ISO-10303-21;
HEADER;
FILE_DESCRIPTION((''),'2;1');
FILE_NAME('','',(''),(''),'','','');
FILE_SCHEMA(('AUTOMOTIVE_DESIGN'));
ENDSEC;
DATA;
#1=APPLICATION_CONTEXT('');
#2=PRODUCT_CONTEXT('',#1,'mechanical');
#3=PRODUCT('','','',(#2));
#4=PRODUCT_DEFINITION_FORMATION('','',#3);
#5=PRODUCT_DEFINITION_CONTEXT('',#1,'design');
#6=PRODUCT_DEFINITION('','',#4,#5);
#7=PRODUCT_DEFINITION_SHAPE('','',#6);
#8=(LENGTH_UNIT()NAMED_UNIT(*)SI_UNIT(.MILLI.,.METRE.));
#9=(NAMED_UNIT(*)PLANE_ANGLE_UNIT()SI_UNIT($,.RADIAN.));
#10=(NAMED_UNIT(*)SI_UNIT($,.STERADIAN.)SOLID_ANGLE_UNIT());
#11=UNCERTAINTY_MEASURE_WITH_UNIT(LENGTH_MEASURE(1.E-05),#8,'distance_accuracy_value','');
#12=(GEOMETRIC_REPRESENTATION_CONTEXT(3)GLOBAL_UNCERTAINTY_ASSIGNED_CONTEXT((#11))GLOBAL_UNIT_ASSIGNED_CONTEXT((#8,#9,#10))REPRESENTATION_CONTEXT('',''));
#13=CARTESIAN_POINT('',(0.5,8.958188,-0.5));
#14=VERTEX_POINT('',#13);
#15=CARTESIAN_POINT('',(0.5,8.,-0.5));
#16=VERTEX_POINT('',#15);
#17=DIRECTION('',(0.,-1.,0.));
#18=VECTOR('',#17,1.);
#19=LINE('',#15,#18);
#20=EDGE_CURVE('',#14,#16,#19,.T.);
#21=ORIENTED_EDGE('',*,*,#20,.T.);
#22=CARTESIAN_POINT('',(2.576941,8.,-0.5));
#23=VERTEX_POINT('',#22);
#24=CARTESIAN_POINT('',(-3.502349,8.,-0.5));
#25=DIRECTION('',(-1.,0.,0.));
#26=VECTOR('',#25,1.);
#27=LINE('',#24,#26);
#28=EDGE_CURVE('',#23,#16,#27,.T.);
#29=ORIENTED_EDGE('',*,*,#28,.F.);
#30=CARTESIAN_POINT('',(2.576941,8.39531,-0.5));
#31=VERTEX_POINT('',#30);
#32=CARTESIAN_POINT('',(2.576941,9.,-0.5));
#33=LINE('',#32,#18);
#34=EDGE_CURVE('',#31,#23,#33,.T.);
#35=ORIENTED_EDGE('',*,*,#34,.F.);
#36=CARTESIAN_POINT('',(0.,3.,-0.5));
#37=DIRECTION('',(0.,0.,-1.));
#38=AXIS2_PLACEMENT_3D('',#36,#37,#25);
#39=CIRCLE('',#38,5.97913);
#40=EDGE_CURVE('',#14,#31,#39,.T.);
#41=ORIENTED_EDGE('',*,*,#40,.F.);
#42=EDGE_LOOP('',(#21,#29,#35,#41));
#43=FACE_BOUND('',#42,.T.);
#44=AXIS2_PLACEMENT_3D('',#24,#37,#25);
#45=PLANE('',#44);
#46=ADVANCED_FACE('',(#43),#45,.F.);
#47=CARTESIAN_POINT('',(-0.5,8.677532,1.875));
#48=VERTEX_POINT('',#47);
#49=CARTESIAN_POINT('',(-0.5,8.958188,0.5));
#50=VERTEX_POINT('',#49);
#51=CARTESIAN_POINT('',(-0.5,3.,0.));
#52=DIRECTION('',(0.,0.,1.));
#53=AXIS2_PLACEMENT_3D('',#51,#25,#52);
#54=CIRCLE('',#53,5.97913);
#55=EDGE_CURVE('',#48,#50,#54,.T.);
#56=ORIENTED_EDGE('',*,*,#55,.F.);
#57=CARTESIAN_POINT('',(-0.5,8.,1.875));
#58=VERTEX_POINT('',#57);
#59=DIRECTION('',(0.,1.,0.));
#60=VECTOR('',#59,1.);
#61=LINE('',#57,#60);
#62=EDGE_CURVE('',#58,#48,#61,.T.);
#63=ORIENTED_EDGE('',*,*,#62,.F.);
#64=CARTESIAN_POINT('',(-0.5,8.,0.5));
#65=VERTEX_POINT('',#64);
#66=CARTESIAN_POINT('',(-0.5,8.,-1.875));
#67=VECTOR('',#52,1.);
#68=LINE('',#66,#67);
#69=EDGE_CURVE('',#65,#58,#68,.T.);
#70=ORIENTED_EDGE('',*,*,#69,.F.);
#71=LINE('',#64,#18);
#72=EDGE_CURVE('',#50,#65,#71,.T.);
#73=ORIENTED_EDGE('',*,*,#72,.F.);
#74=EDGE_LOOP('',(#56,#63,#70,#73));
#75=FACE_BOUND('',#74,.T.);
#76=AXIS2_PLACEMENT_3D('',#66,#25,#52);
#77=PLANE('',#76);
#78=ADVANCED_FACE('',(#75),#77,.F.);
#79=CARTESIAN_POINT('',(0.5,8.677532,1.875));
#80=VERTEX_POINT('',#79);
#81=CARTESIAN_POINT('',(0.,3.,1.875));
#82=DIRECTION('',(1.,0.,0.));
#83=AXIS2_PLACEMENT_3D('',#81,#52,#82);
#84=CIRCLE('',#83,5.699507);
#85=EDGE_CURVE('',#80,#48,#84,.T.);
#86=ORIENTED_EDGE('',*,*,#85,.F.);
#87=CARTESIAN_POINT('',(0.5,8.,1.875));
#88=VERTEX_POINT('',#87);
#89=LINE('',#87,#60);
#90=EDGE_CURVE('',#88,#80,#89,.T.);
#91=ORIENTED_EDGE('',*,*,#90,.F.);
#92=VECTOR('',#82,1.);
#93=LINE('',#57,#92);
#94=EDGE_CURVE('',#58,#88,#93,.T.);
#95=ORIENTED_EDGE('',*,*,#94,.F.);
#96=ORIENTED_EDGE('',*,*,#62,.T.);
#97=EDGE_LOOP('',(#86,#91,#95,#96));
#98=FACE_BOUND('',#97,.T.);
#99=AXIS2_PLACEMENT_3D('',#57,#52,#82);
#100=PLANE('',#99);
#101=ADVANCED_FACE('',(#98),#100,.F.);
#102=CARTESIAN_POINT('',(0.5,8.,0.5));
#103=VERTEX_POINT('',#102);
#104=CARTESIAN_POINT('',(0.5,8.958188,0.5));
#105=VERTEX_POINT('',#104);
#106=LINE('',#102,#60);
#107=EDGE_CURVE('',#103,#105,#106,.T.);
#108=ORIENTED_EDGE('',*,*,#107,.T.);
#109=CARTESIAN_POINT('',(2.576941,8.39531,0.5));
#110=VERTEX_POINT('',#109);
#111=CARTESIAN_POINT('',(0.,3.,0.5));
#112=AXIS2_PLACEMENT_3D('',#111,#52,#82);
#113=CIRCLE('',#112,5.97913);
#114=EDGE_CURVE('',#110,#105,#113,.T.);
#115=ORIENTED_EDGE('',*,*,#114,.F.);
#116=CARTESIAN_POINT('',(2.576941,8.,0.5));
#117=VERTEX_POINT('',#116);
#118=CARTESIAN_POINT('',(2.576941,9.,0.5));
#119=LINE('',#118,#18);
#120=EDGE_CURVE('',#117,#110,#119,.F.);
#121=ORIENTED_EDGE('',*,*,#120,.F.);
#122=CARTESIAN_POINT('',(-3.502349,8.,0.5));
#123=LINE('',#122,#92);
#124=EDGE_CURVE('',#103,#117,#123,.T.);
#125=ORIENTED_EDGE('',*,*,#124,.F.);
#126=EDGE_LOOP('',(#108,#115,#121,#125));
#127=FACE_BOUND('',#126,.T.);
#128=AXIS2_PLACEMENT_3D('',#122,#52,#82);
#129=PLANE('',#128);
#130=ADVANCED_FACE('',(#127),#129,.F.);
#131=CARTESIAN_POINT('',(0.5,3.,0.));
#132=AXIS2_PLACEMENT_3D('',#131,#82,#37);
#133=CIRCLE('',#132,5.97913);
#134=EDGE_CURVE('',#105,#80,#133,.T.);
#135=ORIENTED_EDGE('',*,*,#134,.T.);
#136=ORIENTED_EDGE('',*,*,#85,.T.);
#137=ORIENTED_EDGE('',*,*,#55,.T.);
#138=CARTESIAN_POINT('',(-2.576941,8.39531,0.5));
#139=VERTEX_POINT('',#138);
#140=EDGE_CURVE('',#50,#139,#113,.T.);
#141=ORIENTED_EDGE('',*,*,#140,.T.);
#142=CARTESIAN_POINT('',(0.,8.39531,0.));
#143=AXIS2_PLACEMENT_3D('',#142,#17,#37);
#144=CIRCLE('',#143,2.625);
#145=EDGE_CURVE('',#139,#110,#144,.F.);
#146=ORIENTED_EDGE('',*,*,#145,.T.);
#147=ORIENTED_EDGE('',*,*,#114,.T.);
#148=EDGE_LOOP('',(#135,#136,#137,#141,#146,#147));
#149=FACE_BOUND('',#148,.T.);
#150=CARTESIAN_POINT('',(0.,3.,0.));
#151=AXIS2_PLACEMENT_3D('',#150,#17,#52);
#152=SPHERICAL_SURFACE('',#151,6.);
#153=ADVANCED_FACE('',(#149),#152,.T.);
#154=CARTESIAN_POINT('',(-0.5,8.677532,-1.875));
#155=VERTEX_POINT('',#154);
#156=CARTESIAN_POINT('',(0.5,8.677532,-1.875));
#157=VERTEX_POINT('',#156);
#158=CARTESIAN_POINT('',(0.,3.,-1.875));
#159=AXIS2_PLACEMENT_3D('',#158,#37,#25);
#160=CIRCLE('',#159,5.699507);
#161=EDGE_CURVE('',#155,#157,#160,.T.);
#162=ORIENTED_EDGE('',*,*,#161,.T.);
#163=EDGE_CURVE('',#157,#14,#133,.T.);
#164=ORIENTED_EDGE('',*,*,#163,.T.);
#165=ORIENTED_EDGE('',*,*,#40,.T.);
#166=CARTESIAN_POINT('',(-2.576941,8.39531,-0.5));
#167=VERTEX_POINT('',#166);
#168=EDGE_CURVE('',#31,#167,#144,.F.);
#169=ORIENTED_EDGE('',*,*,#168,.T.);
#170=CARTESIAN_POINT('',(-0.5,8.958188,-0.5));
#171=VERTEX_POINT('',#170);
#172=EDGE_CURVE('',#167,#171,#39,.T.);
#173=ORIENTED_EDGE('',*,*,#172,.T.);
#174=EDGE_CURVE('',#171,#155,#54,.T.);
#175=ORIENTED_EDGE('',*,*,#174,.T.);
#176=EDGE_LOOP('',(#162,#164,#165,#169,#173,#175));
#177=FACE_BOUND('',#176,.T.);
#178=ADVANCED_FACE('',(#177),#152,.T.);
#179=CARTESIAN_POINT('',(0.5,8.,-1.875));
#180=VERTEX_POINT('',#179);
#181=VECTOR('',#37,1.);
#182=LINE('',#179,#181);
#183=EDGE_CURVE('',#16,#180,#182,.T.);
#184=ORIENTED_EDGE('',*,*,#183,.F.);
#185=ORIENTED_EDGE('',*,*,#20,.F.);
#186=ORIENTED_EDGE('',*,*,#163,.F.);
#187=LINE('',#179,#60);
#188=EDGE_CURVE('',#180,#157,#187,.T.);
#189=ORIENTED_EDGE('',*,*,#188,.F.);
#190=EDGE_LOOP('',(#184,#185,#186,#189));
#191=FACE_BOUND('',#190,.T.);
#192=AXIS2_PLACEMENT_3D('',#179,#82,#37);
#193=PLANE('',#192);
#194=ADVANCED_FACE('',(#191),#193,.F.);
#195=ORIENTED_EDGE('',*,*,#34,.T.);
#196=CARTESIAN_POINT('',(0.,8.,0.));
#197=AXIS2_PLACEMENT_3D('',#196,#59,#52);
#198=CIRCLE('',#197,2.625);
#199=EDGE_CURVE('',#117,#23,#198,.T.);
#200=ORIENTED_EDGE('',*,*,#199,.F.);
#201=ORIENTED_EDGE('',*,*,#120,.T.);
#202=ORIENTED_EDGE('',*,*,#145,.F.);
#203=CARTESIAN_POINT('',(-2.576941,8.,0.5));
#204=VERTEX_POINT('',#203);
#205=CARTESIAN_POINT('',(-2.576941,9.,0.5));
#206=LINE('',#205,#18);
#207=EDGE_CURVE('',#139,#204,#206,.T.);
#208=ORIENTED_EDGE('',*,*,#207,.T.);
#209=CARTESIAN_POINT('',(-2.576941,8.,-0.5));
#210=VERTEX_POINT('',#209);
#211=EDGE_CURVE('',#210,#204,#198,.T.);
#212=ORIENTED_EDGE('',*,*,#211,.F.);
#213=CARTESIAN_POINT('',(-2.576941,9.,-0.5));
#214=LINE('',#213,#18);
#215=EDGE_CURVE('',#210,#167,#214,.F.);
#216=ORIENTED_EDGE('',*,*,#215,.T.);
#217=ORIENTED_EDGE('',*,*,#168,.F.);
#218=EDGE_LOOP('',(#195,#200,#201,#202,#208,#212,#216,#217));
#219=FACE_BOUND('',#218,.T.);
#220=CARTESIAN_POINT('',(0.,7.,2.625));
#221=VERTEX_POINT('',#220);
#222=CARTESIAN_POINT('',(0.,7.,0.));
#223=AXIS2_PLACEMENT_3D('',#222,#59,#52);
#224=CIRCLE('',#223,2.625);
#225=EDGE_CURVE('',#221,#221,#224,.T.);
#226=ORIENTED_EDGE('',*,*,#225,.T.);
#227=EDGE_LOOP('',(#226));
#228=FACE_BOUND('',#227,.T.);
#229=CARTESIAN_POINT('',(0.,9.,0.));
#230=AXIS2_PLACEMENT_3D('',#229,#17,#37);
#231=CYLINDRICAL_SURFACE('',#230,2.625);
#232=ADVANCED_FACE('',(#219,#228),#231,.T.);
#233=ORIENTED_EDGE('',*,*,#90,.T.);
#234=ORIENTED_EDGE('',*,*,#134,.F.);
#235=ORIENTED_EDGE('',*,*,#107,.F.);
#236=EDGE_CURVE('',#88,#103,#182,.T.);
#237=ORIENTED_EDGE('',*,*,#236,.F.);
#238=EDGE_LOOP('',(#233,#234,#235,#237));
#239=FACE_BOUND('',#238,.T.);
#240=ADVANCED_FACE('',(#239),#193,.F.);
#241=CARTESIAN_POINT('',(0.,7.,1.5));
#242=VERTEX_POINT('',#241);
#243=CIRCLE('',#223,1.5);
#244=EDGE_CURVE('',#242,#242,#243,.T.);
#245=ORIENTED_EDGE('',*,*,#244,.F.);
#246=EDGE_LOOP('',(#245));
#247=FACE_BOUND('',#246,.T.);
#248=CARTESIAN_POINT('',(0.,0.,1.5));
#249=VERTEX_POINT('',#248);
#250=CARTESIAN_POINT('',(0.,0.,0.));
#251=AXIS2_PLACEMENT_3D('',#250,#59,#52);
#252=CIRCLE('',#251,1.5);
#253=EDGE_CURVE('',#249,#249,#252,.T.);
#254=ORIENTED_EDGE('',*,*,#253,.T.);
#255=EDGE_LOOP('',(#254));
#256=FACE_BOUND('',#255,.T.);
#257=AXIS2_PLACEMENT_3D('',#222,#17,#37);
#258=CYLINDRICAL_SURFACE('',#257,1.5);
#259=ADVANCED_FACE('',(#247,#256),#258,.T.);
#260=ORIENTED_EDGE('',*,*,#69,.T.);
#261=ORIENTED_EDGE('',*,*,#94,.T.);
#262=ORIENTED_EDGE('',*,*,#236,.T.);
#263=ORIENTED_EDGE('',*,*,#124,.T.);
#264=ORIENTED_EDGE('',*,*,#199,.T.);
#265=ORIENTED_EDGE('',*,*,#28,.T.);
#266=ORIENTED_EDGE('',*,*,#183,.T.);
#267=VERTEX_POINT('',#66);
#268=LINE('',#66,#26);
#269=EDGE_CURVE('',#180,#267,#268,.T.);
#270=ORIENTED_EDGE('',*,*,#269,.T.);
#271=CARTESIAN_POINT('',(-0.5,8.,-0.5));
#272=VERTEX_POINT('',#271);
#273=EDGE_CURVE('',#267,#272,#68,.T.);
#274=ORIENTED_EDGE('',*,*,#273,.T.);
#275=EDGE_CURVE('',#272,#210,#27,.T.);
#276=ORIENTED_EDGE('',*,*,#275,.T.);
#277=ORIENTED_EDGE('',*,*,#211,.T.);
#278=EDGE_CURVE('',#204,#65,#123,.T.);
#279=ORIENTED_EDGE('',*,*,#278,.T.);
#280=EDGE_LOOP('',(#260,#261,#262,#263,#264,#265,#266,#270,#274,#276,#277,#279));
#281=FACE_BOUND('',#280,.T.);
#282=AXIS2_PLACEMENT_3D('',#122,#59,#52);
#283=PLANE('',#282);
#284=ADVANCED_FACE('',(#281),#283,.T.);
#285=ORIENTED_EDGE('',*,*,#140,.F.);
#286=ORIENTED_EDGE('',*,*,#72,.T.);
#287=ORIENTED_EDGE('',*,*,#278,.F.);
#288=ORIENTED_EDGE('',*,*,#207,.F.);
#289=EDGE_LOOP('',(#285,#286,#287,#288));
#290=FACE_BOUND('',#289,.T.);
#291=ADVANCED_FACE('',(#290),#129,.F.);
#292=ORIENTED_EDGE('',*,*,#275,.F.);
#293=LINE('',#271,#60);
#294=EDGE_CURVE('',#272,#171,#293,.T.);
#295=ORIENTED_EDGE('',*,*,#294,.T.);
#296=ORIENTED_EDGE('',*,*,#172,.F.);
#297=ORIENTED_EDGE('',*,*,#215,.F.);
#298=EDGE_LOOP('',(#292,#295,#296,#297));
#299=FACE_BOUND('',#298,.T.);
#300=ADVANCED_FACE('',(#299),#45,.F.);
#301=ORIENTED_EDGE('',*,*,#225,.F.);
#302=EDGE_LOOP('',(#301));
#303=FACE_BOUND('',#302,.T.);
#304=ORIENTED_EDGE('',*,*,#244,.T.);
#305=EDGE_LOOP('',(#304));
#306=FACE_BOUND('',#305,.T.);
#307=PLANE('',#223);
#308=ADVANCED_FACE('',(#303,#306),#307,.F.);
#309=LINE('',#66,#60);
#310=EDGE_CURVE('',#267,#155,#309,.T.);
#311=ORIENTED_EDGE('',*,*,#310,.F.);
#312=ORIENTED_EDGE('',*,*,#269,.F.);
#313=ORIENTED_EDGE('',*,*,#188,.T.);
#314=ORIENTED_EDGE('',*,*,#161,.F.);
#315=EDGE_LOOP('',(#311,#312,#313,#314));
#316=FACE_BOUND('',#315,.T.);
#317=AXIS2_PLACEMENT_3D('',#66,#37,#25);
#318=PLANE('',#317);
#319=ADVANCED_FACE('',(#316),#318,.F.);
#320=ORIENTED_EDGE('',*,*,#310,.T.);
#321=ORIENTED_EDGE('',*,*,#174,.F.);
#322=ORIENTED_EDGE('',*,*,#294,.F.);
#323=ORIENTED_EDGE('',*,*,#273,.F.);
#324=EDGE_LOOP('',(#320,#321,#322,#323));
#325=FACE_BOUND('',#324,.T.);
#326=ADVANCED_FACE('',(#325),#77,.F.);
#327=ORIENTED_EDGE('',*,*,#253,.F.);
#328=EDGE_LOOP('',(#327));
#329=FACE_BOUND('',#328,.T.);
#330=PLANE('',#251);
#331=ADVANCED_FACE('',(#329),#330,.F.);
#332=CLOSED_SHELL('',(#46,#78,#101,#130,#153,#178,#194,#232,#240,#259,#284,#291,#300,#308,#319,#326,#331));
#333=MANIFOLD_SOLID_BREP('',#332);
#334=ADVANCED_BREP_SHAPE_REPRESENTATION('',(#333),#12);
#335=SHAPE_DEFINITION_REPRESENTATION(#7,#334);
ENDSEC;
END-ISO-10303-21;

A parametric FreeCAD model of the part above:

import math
import FreeCAD as App
import Part
import Sketcher


def add_polygon(sketch, points):
    """Adds a closed chain of lines whose ends are joined by coincident constraints."""
    first, n = sketch.GeometryCount, len(points)
    for a, b in zip(points, points[1:] + points[:1]):
        sketch.addGeometry(Part.LineSegment(App.Vector(*a, 0), App.Vector(*b, 0)), False)
    for i in range(n):
        sketch.addConstraint(Sketcher.Constraint("Coincident", first + i, 2, first + (i + 1) % n, 1))

doc = App.newDocument("Part")
params = doc.addObject("Spreadsheet::Sheet", "Params")
for row, (alias, value) in enumerate([
    ("sketch1_diameter", "3 mm"),
    ("pad1_length", "7 mm"),
    ("sketch2_diameter", "5.25 mm"),
    ("pad2_length", "2 mm"),
    ("sketch3_height", "1 mm"),
    ("pocket1_length", "1 mm"),
    ("sketch4_width", "1 mm"),
    ("sketch4_height", "3.75 mm"),
    ("pocket2_length", "1 mm"),
    ("sketch5_radius", "6 mm"),
    ("groove_angle", "360 deg"),
], start=1):
    params.set(f"A{row}", alias)
    params.set(f"B{row}", "=" + value)
    params.setAlias(f"B{row}", alias)

body = doc.addObject("PartDesign::Body", "Body")

# Sketch on XZ plane
sketch1 = body.newObject("Sketcher::SketchObject", "Sketch")
sketch1.AttachmentSupport = (doc.getObject("XZ_Plane"), [""])
sketch1.MapMode = "FlatFace"
sketch1.addGeometry(Part.Circle(App.Vector(0, 0, 0), App.Vector(0, 0, 1), 1.5), False)
sketch1.addConstraint(Sketcher.Constraint("Coincident", 0, 3, -1, 1))
sketch1.addConstraint(Sketcher.Constraint("Diameter", 0, 3.0))
sketch1.setExpression("Constraints[1]", "Params.sketch1_diameter")
pad1 = body.newObject("PartDesign::Pad", "Pad")
pad1.Profile = sketch1
pad1.setExpression("Length", "Params.pad1_length")
pad1.Reversed = True

# Sketch on XZ plane
sketch2 = body.newObject("Sketcher::SketchObject", "Sketch001")
sketch2.AttachmentSupport = (doc.getObject("XZ_Plane"), [""])
sketch2.MapMode = "FlatFace"
sketch2.AttachmentOffset = App.Placement(App.Vector(0, 0, -7), App.Rotation())
sketch2.addGeometry(Part.Circle(App.Vector(0, 0, 0), App.Vector(0, 0, 1), 2.625), False)
sketch2.addConstraint(Sketcher.Constraint("Coincident", 0, 3, -1, 1))
sketch2.addConstraint(Sketcher.Constraint("Diameter", 0, 5.25))
sketch2.setExpression("Constraints[1]", "Params.sketch2_diameter")
pad2 = body.newObject("PartDesign::Pad", "Pad001")
pad2.Profile = sketch2
pad2.setExpression("Length", "Params.pad2_length")
pad2.Reversed = True

# Sketch on XZ plane
sketch3 = body.newObject("Sketcher::SketchObject", "Sketch002")
sketch3.AttachmentSupport = (doc.getObject("XZ_Plane"), [""])
sketch3.MapMode = "FlatFace"
sketch3.AttachmentOffset = App.Placement(App.Vector(0, 0, -9), App.Rotation())
add_polygon(sketch3, [(3.502349, 0.5), (3.502349, -0.5), (-3.502349, -0.5), (-3.502349, 0.5)])  # lines 0-3
sketch3.addConstraint(Sketcher.Constraint("Vertical", 0))
sketch3.addConstraint(Sketcher.Constraint("Horizontal", 1))
sketch3.addConstraint(Sketcher.Constraint("Vertical", 2))
sketch3.addConstraint(Sketcher.Constraint("Horizontal", 3))
sketch3.addConstraint(Sketcher.Constraint("Symmetric", 0, 2, 2, 2, -1, 1))
sketch3.addConstraint(Sketcher.Constraint("DistanceY", 0, 2, 0, 1, 1.0))
sketch3.addConstraint(Sketcher.Constraint("DistanceX", 1, 2, 1, 1, 7.004697))
sketch3.setExpression("Constraints[9]", "Params.sketch3_height")
pocket1 = body.newObject("PartDesign::Pocket", "Pocket")
pocket1.Profile = sketch3
pocket1.setExpression("Length", "Params.pocket1_length")
pocket1.Reversed = True

# Sketch on XZ plane
sketch4 = body.newObject("Sketcher::SketchObject", "Sketch003")
sketch4.AttachmentSupport = (doc.getObject("XZ_Plane"), [""])
sketch4.MapMode = "FlatFace"
sketch4.AttachmentOffset = App.Placement(App.Vector(0, 0, -9), App.Rotation())
add_polygon(sketch4, [(0.5, 1.875), (0.5, -1.875), (-0.5, -1.875), (-0.5, 1.875)])  # lines 0-3
sketch4.addConstraint(Sketcher.Constraint("Vertical", 0))
sketch4.addConstraint(Sketcher.Constraint("Horizontal", 1))
sketch4.addConstraint(Sketcher.Constraint("Vertical", 2))
sketch4.addConstraint(Sketcher.Constraint("Horizontal", 3))
sketch4.addConstraint(Sketcher.Constraint("Symmetric", 0, 2, 2, 2, -1, 1))
sketch4.addConstraint(Sketcher.Constraint("DistanceX", 1, 2, 1, 1, 1.0))
sketch4.addConstraint(Sketcher.Constraint("DistanceY", 0, 2, 0, 1, 3.75))
sketch4.setExpression("Constraints[9]", "Params.sketch4_width")
sketch4.setExpression("Constraints[10]", "Params.sketch4_height")
pocket2 = body.newObject("PartDesign::Pocket", "Pocket001")
pocket2.Profile = sketch4
pocket2.setExpression("Length", "Params.pocket2_length")
pocket2.Reversed = True

# Sketch on YZ plane
sketch5 = body.newObject("Sketcher::SketchObject", "Sketch004")
sketch5.AttachmentSupport = (doc.getObject("YZ_Plane"), [""])
sketch5.MapMode = "FlatFace"
sketch5.addGeometry(Part.LineSegment(App.Vector(10.999823, 0, 0), App.Vector(10.999823, 4.549371, 0)), False)
sketch5.addGeometry(Part.LineSegment(App.Vector(10.999823, 4.549371, 0), App.Vector(6.911934, 4.549371, 0)), False)
sketch5.addGeometry(Part.ArcOfCircle(Part.Circle(App.Vector(3, 0, 0), App.Vector(0, 0, 1), 6), math.radians(0), math.radians(49.30827)), False)
sketch5.addGeometry(Part.LineSegment(App.Vector(9, 0, 0), App.Vector(10.999823, 0, 0)), False)
sketch5.addConstraint(Sketcher.Constraint("Coincident", 0, 2, 1, 1))
sketch5.addConstraint(Sketcher.Constraint("Coincident", 1, 2, 2, 2))
sketch5.addConstraint(Sketcher.Constraint("Coincident", 2, 1, 3, 1))
sketch5.addConstraint(Sketcher.Constraint("Coincident", 3, 2, 0, 1))
sketch5.addConstraint(Sketcher.Constraint("Vertical", 0))
sketch5.addConstraint(Sketcher.Constraint("Horizontal", 1))
sketch5.addConstraint(Sketcher.Constraint("Horizontal", 3))
sketch5.addConstraint(Sketcher.Constraint("PointOnObject", 2, 3, -1))
sketch5.addConstraint(Sketcher.Constraint("PointOnObject", 2, 1, -1))
sketch5.addConstraint(Sketcher.Constraint("Radius", 2, 6.0))
sketch5.addConstraint(Sketcher.Constraint("DistanceX", -1, 1, 2, 3, 3.0))
sketch5.addConstraint(Sketcher.Constraint("DistanceX", 1, 2, 1, 1, 4.087889))
sketch5.addConstraint(Sketcher.Constraint("DistanceY", 0, 1, 0, 2, 4.549371))
sketch5.setExpression("Constraints[9]", "Params.sketch5_radius")
groove = body.newObject("PartDesign::Groove", "Groove")
groove.Profile = sketch5
groove.ReferenceAxis = (sketch5, ["H_Axis"])
groove.setExpression("Angle", "Params.groove_angle")

doc.recompute()
